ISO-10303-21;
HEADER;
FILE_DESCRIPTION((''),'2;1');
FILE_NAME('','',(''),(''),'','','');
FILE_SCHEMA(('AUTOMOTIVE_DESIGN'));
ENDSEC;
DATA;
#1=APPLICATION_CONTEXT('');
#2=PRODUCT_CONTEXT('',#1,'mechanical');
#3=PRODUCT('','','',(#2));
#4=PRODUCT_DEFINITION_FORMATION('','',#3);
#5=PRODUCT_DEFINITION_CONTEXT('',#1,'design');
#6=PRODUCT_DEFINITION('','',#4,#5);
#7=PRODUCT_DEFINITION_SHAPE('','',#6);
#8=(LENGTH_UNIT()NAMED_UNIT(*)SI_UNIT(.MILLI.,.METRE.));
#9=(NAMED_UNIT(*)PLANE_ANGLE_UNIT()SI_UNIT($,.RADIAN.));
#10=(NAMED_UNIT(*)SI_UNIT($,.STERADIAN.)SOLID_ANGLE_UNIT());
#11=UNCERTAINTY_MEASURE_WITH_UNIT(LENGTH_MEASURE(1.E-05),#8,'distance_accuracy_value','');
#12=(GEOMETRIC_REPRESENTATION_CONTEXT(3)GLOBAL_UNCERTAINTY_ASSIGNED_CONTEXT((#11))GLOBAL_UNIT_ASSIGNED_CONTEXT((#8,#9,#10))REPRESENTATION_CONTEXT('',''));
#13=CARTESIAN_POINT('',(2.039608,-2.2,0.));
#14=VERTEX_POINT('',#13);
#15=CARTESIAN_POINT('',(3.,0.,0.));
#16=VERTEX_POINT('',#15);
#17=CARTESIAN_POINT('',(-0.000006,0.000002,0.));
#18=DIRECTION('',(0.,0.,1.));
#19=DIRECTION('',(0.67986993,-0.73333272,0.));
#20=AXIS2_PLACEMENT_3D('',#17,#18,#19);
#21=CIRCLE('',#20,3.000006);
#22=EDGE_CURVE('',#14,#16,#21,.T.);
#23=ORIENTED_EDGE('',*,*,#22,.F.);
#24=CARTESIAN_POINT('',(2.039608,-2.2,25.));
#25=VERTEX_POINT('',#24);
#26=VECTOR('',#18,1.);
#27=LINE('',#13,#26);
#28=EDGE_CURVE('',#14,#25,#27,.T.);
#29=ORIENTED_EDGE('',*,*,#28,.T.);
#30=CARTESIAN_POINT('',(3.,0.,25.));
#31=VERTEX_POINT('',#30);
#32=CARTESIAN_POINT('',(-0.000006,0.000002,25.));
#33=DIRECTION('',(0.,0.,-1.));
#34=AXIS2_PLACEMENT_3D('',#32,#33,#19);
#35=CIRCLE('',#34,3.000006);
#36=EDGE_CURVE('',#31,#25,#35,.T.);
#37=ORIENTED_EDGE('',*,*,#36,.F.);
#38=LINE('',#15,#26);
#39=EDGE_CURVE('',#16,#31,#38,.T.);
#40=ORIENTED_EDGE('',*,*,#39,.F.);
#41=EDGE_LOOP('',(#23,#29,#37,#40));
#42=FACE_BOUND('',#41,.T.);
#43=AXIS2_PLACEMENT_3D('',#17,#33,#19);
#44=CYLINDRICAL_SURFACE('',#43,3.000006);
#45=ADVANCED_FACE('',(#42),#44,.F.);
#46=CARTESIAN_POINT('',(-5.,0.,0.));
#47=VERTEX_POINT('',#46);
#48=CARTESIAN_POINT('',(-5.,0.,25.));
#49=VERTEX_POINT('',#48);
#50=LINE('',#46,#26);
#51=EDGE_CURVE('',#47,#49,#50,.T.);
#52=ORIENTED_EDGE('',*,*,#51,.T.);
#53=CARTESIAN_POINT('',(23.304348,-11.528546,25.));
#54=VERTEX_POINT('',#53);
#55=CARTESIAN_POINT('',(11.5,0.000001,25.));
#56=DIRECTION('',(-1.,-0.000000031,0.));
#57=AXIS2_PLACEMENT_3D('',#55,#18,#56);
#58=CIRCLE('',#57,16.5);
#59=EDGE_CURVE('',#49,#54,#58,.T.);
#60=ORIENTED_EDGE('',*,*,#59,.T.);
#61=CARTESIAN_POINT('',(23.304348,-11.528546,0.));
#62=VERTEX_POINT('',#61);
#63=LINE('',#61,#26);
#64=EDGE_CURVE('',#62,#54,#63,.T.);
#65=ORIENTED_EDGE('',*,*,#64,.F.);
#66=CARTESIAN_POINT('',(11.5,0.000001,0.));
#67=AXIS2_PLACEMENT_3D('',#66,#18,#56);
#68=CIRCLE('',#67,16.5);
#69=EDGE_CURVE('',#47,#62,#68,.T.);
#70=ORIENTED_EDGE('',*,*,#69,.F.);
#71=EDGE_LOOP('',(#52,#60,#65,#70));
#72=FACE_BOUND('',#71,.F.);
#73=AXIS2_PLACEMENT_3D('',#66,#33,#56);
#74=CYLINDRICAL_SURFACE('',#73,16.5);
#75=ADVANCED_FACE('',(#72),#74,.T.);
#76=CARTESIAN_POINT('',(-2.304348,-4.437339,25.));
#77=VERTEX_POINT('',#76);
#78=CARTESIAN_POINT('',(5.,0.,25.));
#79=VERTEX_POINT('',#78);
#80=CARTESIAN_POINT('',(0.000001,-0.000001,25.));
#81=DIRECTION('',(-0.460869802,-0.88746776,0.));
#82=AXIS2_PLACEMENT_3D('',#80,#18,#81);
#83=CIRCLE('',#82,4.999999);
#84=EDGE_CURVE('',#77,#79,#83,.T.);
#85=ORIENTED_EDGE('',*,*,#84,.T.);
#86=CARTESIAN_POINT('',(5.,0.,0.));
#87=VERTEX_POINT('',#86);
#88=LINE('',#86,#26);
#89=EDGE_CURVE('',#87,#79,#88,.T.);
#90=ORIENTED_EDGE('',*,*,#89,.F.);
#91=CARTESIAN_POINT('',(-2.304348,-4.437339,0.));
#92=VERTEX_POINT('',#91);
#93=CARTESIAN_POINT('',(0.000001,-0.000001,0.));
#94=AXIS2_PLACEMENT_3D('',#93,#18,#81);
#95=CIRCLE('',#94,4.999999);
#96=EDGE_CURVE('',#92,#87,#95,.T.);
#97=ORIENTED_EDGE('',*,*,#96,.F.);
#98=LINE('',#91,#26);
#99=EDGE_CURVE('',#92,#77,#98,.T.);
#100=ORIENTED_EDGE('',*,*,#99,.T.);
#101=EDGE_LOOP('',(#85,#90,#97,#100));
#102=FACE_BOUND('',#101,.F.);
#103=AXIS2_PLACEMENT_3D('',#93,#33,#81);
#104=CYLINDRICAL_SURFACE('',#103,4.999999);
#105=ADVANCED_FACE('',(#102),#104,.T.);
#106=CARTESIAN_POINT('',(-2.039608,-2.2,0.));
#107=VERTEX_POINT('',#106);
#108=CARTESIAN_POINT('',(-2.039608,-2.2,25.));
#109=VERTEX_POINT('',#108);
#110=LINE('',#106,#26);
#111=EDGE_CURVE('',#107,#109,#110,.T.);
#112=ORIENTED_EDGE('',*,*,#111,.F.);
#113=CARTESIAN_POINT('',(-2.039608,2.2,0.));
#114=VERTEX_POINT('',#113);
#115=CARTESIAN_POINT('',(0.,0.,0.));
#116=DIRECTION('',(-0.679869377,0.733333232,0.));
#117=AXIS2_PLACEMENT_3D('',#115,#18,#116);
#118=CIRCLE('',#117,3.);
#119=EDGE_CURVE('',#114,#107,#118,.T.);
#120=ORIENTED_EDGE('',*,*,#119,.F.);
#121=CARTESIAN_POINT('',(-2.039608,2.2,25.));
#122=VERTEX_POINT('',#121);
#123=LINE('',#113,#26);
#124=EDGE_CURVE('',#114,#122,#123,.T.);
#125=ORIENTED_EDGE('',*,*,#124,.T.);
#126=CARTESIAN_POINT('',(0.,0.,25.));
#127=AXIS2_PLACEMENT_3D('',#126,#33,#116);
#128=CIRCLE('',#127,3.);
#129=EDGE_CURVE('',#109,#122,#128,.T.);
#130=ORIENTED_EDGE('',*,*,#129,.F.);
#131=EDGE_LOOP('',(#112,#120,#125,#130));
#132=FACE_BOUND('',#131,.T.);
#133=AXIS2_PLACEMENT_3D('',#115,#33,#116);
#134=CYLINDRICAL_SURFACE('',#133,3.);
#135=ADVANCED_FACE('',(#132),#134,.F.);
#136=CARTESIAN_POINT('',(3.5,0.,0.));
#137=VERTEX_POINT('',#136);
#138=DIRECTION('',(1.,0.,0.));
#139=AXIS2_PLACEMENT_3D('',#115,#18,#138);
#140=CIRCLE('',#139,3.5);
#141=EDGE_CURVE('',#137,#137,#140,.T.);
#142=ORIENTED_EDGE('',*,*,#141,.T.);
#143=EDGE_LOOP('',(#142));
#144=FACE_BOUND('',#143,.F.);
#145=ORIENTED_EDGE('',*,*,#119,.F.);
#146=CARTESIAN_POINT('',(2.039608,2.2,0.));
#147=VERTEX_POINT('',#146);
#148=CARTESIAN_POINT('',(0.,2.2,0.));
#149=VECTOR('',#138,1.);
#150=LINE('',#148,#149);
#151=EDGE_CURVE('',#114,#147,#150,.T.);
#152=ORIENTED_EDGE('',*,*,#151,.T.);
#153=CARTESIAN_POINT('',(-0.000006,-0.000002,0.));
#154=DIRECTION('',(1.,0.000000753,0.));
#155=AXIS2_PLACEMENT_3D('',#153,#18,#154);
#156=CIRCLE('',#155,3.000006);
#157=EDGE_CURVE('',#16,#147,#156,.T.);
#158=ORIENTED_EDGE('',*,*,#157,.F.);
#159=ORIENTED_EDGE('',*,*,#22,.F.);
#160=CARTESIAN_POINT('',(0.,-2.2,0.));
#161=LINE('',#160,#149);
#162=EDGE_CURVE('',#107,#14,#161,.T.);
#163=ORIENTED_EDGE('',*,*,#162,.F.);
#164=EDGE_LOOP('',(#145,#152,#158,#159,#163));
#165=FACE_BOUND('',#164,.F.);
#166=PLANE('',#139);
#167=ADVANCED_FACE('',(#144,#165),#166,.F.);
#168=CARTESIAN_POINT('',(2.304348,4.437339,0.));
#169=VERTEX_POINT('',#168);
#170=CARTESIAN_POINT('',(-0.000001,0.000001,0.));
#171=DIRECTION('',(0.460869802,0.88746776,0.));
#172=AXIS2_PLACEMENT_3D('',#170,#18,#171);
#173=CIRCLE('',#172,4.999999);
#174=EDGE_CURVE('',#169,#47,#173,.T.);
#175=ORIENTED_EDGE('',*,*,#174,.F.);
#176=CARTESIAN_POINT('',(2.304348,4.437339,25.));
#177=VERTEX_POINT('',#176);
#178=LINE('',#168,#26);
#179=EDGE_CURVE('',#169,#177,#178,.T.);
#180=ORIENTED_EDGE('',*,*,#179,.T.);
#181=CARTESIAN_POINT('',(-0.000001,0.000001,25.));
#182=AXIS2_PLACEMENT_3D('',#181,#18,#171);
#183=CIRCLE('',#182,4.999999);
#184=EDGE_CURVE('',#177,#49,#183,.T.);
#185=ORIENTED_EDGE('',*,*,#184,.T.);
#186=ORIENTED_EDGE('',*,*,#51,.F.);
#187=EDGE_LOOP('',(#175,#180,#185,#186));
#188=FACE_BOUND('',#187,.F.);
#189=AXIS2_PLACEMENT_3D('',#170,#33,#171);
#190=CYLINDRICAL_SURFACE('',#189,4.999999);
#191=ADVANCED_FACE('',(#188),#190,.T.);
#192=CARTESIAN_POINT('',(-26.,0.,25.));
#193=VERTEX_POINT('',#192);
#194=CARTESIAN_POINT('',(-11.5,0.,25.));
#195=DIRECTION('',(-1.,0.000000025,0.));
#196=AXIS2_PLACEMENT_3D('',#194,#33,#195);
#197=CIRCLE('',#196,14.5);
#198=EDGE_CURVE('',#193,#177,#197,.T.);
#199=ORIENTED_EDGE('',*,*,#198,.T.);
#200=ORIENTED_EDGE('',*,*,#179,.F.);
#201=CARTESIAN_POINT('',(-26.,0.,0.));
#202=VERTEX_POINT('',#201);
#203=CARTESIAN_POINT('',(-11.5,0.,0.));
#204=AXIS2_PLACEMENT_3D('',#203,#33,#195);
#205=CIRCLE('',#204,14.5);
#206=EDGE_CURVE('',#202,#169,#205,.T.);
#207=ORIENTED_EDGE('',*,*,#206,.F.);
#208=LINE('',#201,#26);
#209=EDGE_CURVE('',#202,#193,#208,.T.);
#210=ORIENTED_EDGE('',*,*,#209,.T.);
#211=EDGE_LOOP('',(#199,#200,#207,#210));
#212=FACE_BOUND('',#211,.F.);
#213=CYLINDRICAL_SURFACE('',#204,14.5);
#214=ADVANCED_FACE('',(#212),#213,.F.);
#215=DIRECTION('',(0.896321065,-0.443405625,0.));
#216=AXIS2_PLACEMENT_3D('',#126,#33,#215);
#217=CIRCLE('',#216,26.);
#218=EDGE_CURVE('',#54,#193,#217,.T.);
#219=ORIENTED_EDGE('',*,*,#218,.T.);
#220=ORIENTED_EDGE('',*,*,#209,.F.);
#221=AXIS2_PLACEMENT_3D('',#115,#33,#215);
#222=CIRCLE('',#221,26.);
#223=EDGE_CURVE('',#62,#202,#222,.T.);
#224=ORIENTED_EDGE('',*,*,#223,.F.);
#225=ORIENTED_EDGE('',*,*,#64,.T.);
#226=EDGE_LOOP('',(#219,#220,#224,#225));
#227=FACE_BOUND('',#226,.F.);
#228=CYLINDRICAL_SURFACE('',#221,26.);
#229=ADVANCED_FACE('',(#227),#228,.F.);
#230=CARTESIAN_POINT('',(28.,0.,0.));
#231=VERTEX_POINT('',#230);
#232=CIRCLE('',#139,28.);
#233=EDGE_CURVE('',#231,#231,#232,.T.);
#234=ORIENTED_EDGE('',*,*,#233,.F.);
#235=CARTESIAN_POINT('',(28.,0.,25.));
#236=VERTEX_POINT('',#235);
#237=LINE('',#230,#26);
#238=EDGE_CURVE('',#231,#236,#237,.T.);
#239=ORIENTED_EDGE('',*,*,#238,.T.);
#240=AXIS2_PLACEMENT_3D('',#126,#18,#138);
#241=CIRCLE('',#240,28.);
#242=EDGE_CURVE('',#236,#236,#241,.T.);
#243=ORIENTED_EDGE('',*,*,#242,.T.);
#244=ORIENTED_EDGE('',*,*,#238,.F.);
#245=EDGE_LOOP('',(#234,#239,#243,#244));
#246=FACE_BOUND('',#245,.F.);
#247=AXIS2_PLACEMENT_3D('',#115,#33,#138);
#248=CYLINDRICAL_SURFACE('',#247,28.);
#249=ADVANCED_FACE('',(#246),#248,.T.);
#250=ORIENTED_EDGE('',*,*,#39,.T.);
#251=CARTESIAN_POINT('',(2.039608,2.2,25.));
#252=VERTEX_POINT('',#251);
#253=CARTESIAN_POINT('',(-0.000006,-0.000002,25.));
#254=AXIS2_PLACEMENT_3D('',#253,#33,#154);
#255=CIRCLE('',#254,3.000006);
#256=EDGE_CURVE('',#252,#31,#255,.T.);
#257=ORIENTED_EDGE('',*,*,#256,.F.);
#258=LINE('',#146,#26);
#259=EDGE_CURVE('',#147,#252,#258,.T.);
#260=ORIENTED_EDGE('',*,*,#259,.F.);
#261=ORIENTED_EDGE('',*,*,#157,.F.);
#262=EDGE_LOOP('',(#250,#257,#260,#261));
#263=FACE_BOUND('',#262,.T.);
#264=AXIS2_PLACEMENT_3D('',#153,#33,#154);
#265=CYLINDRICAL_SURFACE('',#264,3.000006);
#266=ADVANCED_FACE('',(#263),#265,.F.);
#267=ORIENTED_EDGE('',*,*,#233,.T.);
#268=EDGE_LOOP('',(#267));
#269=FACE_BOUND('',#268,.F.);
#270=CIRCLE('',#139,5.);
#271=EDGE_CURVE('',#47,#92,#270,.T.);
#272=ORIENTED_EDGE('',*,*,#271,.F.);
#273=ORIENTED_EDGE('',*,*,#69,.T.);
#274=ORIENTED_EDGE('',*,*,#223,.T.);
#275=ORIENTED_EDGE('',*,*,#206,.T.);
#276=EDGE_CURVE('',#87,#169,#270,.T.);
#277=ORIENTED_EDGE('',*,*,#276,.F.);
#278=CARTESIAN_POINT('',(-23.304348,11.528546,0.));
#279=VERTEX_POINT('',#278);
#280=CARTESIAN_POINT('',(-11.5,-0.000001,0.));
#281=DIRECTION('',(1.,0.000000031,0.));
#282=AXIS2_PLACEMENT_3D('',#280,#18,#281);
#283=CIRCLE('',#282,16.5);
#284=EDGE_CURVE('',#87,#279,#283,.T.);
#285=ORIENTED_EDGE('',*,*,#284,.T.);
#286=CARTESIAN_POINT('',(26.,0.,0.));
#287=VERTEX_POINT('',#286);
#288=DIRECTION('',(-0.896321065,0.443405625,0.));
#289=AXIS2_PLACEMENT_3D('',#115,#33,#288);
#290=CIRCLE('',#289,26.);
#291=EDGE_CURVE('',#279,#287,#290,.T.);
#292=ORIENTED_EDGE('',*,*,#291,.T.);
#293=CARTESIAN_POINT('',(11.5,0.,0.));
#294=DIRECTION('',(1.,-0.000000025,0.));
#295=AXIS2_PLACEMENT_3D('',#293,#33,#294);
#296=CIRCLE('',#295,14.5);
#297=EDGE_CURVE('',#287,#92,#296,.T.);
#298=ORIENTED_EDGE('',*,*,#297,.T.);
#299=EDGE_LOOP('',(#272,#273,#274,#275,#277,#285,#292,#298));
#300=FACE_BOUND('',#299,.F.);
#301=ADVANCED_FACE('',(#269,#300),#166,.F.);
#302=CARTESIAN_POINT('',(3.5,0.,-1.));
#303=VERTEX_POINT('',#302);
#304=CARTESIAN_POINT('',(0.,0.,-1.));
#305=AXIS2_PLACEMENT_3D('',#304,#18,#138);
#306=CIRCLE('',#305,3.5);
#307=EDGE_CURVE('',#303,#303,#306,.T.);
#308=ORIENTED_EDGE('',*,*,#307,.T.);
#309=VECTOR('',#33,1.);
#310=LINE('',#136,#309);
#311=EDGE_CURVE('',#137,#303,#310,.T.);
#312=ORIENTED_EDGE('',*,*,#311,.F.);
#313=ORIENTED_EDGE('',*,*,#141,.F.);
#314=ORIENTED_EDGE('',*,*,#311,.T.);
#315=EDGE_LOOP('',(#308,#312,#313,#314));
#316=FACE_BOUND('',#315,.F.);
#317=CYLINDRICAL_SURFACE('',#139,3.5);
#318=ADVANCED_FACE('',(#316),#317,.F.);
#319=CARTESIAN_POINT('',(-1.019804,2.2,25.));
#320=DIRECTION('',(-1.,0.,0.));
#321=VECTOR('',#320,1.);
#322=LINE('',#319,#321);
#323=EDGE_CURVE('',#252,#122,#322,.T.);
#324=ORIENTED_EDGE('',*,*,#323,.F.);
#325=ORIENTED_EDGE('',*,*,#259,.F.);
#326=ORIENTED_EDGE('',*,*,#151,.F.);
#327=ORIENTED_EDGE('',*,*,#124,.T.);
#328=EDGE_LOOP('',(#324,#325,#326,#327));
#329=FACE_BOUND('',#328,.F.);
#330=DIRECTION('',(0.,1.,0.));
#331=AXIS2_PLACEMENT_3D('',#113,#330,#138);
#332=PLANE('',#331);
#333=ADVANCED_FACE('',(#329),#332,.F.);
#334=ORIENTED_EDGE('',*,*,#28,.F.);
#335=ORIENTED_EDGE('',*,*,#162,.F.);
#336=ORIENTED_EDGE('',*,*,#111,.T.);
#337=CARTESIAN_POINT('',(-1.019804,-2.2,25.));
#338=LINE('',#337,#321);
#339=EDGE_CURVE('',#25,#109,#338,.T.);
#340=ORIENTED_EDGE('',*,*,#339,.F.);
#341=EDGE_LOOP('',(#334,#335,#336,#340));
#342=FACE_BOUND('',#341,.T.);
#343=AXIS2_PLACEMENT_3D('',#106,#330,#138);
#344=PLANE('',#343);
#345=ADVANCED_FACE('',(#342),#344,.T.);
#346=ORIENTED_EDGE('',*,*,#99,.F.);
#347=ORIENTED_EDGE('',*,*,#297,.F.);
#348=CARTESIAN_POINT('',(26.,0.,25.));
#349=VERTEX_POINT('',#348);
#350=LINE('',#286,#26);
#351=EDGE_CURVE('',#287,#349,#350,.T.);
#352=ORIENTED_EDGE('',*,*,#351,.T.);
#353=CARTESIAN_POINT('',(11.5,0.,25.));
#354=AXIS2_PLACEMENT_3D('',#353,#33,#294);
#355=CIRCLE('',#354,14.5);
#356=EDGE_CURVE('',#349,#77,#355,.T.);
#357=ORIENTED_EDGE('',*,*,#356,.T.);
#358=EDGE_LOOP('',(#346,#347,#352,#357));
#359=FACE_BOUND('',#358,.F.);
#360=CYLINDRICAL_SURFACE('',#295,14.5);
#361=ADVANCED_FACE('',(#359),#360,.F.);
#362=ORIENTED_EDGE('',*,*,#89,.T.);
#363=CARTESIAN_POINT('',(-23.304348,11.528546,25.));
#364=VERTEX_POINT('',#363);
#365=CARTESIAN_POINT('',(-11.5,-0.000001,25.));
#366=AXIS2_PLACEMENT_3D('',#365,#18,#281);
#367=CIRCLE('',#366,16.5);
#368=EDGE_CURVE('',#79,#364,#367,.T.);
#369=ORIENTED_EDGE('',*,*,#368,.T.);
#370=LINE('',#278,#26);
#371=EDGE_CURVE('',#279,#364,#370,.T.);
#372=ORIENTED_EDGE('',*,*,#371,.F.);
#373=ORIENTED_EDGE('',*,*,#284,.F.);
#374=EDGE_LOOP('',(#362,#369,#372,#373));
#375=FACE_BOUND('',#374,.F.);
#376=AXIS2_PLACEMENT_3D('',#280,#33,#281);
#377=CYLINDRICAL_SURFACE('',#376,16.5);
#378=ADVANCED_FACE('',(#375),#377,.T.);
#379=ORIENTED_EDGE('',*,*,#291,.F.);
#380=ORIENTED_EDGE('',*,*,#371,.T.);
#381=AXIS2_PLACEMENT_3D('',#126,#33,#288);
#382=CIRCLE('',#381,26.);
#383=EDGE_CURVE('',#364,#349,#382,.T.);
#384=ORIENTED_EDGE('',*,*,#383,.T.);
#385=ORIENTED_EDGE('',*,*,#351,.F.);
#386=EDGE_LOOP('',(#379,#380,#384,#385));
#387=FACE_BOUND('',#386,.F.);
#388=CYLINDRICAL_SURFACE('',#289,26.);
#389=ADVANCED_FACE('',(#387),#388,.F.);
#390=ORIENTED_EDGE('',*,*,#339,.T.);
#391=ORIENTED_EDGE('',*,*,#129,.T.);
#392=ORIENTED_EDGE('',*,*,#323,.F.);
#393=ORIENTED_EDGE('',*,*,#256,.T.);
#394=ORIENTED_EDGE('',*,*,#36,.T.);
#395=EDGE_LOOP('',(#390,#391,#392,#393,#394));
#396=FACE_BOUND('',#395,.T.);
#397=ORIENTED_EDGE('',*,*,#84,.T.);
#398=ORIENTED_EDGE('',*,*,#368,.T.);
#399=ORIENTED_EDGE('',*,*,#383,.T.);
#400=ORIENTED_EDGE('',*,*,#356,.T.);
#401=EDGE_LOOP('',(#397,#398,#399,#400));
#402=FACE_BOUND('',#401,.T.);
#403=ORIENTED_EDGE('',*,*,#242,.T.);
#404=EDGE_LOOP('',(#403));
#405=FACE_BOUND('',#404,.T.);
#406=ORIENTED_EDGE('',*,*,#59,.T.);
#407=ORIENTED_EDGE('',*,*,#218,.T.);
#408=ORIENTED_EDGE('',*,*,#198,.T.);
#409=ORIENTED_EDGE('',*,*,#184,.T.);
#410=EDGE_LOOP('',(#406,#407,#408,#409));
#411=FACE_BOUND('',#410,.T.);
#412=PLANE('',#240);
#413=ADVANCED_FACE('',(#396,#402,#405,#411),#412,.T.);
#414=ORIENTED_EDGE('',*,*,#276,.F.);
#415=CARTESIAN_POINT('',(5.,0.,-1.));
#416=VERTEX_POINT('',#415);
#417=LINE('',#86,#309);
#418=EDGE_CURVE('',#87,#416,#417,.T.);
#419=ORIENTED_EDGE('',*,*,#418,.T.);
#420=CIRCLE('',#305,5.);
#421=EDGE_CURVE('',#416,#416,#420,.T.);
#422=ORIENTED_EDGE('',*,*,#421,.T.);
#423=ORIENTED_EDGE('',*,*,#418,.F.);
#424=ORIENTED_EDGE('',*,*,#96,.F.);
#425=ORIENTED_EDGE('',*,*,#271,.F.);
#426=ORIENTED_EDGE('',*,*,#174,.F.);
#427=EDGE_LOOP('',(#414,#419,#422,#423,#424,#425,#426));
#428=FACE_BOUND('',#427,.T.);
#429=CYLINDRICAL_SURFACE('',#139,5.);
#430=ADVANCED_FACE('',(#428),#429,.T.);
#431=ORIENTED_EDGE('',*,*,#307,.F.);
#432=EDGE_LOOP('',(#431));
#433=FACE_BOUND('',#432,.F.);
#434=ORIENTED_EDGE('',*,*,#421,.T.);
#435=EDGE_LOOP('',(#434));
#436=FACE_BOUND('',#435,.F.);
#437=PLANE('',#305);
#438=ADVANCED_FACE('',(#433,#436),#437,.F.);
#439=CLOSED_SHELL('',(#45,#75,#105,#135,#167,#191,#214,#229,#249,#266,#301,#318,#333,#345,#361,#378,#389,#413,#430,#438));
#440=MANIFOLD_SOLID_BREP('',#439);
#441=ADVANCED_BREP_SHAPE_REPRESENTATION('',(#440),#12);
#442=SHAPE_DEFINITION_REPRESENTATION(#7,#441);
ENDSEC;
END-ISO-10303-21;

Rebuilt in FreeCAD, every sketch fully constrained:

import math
import FreeCAD as App
import Part
import Sketcher
from FreeCAD import Vector

doc = App.newDocument("Part")
body = doc.addObject("PartDesign::Body", "Body")

# Sketch on XY plane
sketch1 = doc.addObject("Sketcher::SketchObject", "Sketch")
body.addObject(sketch1)
sketch1.AttachmentSupport = (doc.XY_Plane, [""])
sketch1.MapMode = "FlatFace"
sketch1.addGeometry([
    Part.Circle(Vector(0, 0, 0), Vector(0, 0, 1), 28),  # 0
    Part.ArcOfCircle(Part.Circle(Vector(11.5, 0, 0), Vector(0, 0, 1), 16.5), math.radians(-180), math.radians(-44)),  # 1
    Part.ArcOfCircle(Part.Circle(Vector(0, 0, 0), Vector(0, 0, 1), 26), math.radians(-180), math.radians(-26)),  # 2
    Part.ArcOfCircle(Part.Circle(Vector(-11.5, 0, 0), Vector(0, 0, 1), 14.5), math.radians(18), math.radians(180)),  # 3
    Part.ArcOfCircle(Part.Circle(Vector(0, 0, 0), Vector(0, 0, 1), 5), math.radians(63), math.radians(180)),  # 4
    Part.ArcOfCircle(Part.Circle(Vector(11.5, 0, 0), Vector(0, 0, 1), 14.5), math.radians(-162), math.radians(0)),  # 5
    Part.ArcOfCircle(Part.Circle(Vector(0, 0, 0), Vector(0, 0, 1), 5), math.radians(-117), math.radians(0)),  # 6
    Part.ArcOfCircle(Part.Circle(Vector(-11.5, 0, 0), Vector(0, 0, 1), 16.5), math.radians(0), math.radians(136)),  # 7
    Part.ArcOfCircle(Part.Circle(Vector(0, 0, 0), Vector(0, 0, 1), 26), math.radians(0), math.radians(154)),  # 8
], False)
sketch1.addConstraint([
    Sketcher.Constraint("Coincident", 1, 2, 2, 2),
    Sketcher.Constraint("Tangent", 2, 1, 3, 2),
    Sketcher.Constraint("Coincident", 3, 1, 4, 1),
    Sketcher.Constraint("Tangent", 4, 2, 1, 1),
    Sketcher.Constraint("Coincident", 5, 1, 6, 1),
    Sketcher.Constraint("Tangent", 6, 2, 7, 1),
    Sketcher.Constraint("Coincident", 7, 2, 8, 2),
    Sketcher.Constraint("Tangent", 8, 1, 5, 2),
    Sketcher.Constraint("Coincident", 0, 3, -1, 1),
    Sketcher.Constraint("Coincident", 2, 3, -1, 1),
    Sketcher.Constraint("Coincident", 4, 3, -1, 1),
    Sketcher.Constraint("Coincident", 6, 3, -1, 1),
    Sketcher.Constraint("Coincident", 8, 3, -1, 1),
    Sketcher.Constraint("Coincident", 5, 3, 1, 3),
    Sketcher.Constraint("Coincident", 7, 3, 3, 3),
    Sketcher.Constraint("Equal", 3, 5),
    Sketcher.Constraint("Equal", 4, 6),
    Sketcher.Constraint("Equal", 1, 7),
    Sketcher.Constraint("PointOnObject", 1, 3, -1),
    Sketcher.Constraint("PointOnObject", 3, 3, -1),
    Sketcher.Constraint("Diameter", 0, 56.0),
    Sketcher.Constraint("Radius", 2, 26.0),
    Sketcher.Constraint("Radius", 4, 4.999999),
    Sketcher.Constraint("Radius", 1, 16.5),
])
pad1 = doc.addObject("PartDesign::Pad", "Pad")
body.addObject(pad1)
pad1.Profile = sketch1
pad1.Length = 25

# Sketch on XY plane
sketch2 = doc.addObject("Sketcher::SketchObject", "Sketch001")
body.addObject(sketch2)
sketch2.AttachmentSupport = (doc.XY_Plane, [""])
sketch2.MapMode = "FlatFace"
sketch2.addGeometry([
    Part.ArcOfCircle(Part.Circle(Vector(0, 0, 0), Vector(0, 0, 1), 3), math.radians(133), math.radians(227)),  # 0
    Part.LineSegment(Vector(-2, -2.2, 0), Vector(2, -2.2, 0)),  # 1
    Part.ArcOfCircle(Part.Circle(Vector(0, 0, 0), Vector(0, 0, 1), 3), math.radians(-47), math.radians(0)),  # 2
    Part.ArcOfCircle(Part.Circle(Vector(0, 0, 0), Vector(0, 0, 1), 3), math.radians(0), math.radians(47)),  # 3
    Part.LineSegment(Vector(2, 2.2, 0), Vector(-2, 2.2, 0)),  # 4
], False)
sketch2.addConstraint([
    Sketcher.Constraint("Coincident", 0, 2, 1, 1),
    Sketcher.Constraint("Coincident", 1, 2, 2, 1),
    Sketcher.Constraint("Tangent", 2, 2, 3, 1),
    Sketcher.Constraint("Coincident", 3, 2, 4, 1),
    Sketcher.Constraint("Coincident", 4, 2, 0, 1),
    Sketcher.Constraint("Horizontal", 1),
    Sketcher.Constraint("Horizontal", 4),
    Sketcher.Constraint("Coincident", 0, 3, -1, 1),
    Sketcher.Constraint("Coincident", 2, 3, -1, 1),
    Sketcher.Constraint("Equal", 2, 3),
    Sketcher.Constraint("Symmetric", 0, 2, 3, 2, -1, 1),
    Sketcher.Constraint("PointOnObject", 2, 2, -1),
    Sketcher.Constraint("Radius", 0, 3.0),
    Sketcher.Constraint("DistanceY", 0, 2, -1, 1, 2.2),
])
pocket1 = doc.addObject("PartDesign::Pocket", "Pocket")
body.addObject(pocket1)
pocket1.Profile = sketch2
pocket1.Length = 30
pocket1.Reversed = True

# Sketch on XY plane
sketch3 = doc.addObject("Sketcher::SketchObject", "Sketch002")
body.addObject(sketch3)
sketch3.AttachmentSupport = (doc.XY_Plane, [""])
sketch3.MapMode = "FlatFace"
sketch3.addGeometry([
    Part.Circle(Vector(0, 0, 0), Vector(0, 0, 1), 5),
    Part.Circle(Vector(0, 0, 0), Vector(0, 0, 1), 3.5),
], False)
sketch3.addConstraint([
    Sketcher.Constraint("Coincident", 0, 3, -1, 1),
    Sketcher.Constraint("Coincident", 1, 3, -1, 1),
    Sketcher.Constraint("Diameter", 0, 10.0),
    Sketcher.Constraint("Diameter", 1, 7.0),
])
pad2 = doc.addObject("PartDesign::Pad", "Pad001")
body.addObject(pad2)
pad2.Profile = sketch3
pad2.Length = 1
pad2.Reversed = True

doc.recompute()
